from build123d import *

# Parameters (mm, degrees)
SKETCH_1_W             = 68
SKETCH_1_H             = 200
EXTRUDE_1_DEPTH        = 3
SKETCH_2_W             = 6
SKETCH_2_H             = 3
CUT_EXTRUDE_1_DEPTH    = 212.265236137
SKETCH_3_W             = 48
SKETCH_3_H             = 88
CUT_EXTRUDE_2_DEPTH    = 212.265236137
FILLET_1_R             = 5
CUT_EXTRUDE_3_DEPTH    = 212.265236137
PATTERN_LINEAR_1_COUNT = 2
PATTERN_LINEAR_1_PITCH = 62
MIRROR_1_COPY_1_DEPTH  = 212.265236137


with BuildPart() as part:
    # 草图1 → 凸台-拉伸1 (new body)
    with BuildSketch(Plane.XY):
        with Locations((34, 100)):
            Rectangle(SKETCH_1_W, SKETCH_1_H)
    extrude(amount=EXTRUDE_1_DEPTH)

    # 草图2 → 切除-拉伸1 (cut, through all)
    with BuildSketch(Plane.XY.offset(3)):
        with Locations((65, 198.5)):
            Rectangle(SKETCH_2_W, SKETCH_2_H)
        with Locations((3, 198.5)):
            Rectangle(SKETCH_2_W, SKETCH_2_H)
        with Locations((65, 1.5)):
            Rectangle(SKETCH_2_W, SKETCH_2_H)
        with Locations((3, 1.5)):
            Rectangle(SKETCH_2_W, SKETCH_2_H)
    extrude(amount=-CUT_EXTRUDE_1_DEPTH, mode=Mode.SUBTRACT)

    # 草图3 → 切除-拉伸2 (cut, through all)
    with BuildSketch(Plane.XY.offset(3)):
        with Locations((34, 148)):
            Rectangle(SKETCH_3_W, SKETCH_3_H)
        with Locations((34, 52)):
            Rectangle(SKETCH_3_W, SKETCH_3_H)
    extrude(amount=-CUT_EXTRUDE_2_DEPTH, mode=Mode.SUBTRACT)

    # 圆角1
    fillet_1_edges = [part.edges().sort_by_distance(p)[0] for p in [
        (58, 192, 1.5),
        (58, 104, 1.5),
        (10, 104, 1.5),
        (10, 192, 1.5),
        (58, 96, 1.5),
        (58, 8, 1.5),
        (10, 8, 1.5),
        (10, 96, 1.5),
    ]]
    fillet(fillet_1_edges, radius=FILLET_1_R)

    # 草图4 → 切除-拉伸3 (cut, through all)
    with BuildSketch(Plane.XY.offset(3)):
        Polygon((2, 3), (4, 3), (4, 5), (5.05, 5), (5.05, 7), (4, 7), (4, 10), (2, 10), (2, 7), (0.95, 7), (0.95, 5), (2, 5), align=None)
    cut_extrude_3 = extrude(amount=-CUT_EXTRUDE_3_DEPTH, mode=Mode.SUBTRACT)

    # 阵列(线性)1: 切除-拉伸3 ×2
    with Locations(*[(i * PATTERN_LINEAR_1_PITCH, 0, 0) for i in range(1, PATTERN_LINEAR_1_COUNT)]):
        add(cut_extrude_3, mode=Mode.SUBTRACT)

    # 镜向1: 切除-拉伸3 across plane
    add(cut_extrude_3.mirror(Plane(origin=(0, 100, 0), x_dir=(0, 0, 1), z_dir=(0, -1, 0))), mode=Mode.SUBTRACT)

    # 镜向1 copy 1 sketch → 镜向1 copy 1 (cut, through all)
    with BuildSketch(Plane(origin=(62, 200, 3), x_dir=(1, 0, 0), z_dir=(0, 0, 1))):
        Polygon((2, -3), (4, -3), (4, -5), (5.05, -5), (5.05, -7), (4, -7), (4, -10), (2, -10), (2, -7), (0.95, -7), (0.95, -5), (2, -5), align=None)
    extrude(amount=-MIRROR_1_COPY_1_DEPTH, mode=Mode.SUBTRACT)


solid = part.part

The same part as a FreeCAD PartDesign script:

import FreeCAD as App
import Part
import Sketcher

V = App.Vector


def edges_at(feature, points):
    """Names of the edges that pass closest to the given points."""
    edges = feature.Shape.Edges
    near = lambda p: min(range(len(edges)), key=lambda i: edges[i].distToShape(Part.Vertex(*p))[0])
    return sorted({f"Edge{near(p) + 1}" for p in points})

doc = App.newDocument("Part")
body = doc.addObject("PartDesign::Body", "Body")

# Sketch on XY plane
sketch1 = body.newObject("Sketcher::SketchObject", "Sketch")
sketch1.AttachmentSupport = (doc.getObject("XY_Plane"), [""])
sketch1.MapMode = "FlatFace"
sketch1.addGeometry([
    Part.LineSegment(V(0, 200, 0), V(0, 0, 0)),
    Part.LineSegment(V(0, 0, 0), V(68, 0, 0)),
    Part.LineSegment(V(68, 0, 0), V(68, 200, 0)),
    Part.LineSegment(V(68, 200, 0), V(0, 200, 0)),
], False)
sketch1.addConstraint([
    Sketcher.Constraint("Coincident", 0, 2, 1, 1),
    Sketcher.Constraint("Coincident", 1, 2, 2, 1),
    Sketcher.Constraint("Coincident", 2, 2, 3, 1),
    Sketcher.Constraint("Coincident", 3, 2, 0, 1),
    Sketcher.Constraint("Vertical", 0),
    Sketcher.Constraint("Horizontal", 1),
    Sketcher.Constraint("Vertical", 2),
    Sketcher.Constraint("Horizontal", 3),
    Sketcher.Constraint("Coincident", 0, 2, -1, 1),
    Sketcher.Constraint("DistanceX", 1, 1, 1, 2, 68.0),
    Sketcher.Constraint("DistanceY", 0, 2, 0, 1, 200.0),
])
pad1 = body.newObject("PartDesign::Pad", "Pad")
pad1.Profile = sketch1
pad1.Length = 3

# Sketch on XY plane
sketch2 = body.newObject("Sketcher::SketchObject", "Sketch001")
sketch2.AttachmentSupport = (doc.getObject("XY_Plane"), [""])
sketch2.MapMode = "FlatFace"
sketch2.AttachmentOffset = App.Placement(V(0, 0, 3), App.Rotation())
sketch2.addGeometry([
    Part.LineSegment(V(62, 200, 0), V(62, 197, 0)),  # 0
    Part.LineSegment(V(62, 197, 0), V(68, 197, 0)),  # 1
    Part.LineSegment(V(68, 197, 0), V(68, 200, 0)),  # 2
    Part.LineSegment(V(68, 200, 0), V(62, 200, 0)),  # 3
    Part.LineSegment(V(0, 200, 0), V(0, 197, 0)),  # 4
    Part.LineSegment(V(0, 197, 0), V(6, 197, 0)),  # 5
    Part.LineSegment(V(6, 197, 0), V(6, 200, 0)),  # 6
    Part.LineSegment(V(6, 200, 0), V(0, 200, 0)),  # 7
    Part.LineSegment(V(62, 3, 0), V(62, 0, 0)),  # 8
    Part.LineSegment(V(62, 0, 0), V(68, 0, 0)),  # 9
    Part.LineSegment(V(68, 0, 0), V(68, 3, 0)),  # 10
    Part.LineSegment(V(68, 3, 0), V(62, 3, 0)),  # 11
    Part.LineSegment(V(0, 3, 0), V(0, 0, 0)),  # 12
    Part.LineSegment(V(0, 0, 0), V(6, 0, 0)),  # 13
    Part.LineSegment(V(6, 0, 0), V(6, 3, 0)),  # 14
    Part.LineSegment(V(6, 3, 0), V(0, 3, 0)),  # 15
], False)
sketch2.addConstraint([
    Sketcher.Constraint("Coincident", 0, 2, 1, 1),
    Sketcher.Constraint("Coincident", 1, 2, 2, 1),
    Sketcher.Constraint("Coincident", 2, 2, 3, 1),
    Sketcher.Constraint("Coincident", 3, 2, 0, 1),
    Sketcher.Constraint("Coincident", 4, 2, 5, 1),
    Sketcher.Constraint("Coincident", 5, 2, 6, 1),
    Sketcher.Constraint("Coincident", 6, 2, 7, 1),
    Sketcher.Constraint("Coincident", 7, 2, 4, 1),
    Sketcher.Constraint("Coincident", 8, 2, 9, 1),
    Sketcher.Constraint("Coincident", 9, 2, 10, 1),
    Sketcher.Constraint("Coincident", 10, 2, 11, 1),
    Sketcher.Constraint("Coincident", 11, 2, 8, 1),
    Sketcher.Constraint("Coincident", 12, 2, 13, 1),
    Sketcher.Constraint("Coincident", 13, 2, 14, 1),
    Sketcher.Constraint("Coincident", 14, 2, 15, 1),
    Sketcher.Constraint("Coincident", 15, 2, 12, 1),
    Sketcher.Constraint("Vertical", 0),
    Sketcher.Constraint("Horizontal", 1),
    Sketcher.Constraint("Vertical", 2),
    Sketcher.Constraint("Horizontal", 3),
    Sketcher.Constraint("Vertical", 4),
    Sketcher.Constraint("Horizontal", 5),
    Sketcher.Constraint("Vertical", 6),
    Sketcher.Constraint("Horizontal", 7),
    Sketcher.Constraint("Vertical", 8),
    Sketcher.Constraint("Horizontal", 9),
    Sketcher.Constraint("Vertical", 10),
    Sketcher.Constraint("Horizontal", 11),
    Sketcher.Constraint("Vertical", 12),
    Sketcher.Constraint("Horizontal", 13),
    Sketcher.Constraint("Vertical", 14),
    Sketcher.Constraint("Horizontal", 15),
    Sketcher.Constraint("Coincident", 12, 2, -1, 1),
    Sketcher.Constraint("PointOnObject", 4, 2, -2),
    Sketcher.Constraint("PointOnObject", 8, 2, -1),
    Sketcher.Constraint("Horizontal", 1, 2, 4, 2),
    Sketcher.Constraint("Horizontal", 3, 2, 6, 2),
    Sketcher.Constraint("Horizontal", 11, 2, 14, 2),
    Sketcher.Constraint("Vertical", 3, 2, 8, 2),
    Sketcher.Constraint("Vertical", 2, 2, 9, 2),
    Sketcher.Constraint("Vertical", 6, 2, 13, 2),
    Sketcher.Constraint("Equal", 3, 5),
    Sketcher.Constraint("Equal", 6, 8),
    Sketcher.Constraint("DistanceX", 1, 1, 1, 2, 6.0),
    Sketcher.Constraint("DistanceY", 0, 2, 0, 1, 3.0),
    Sketcher.Constraint("DistanceX", -1, 1, 0, 2, 62.0),
    Sketcher.Constraint("DistanceY", -1, 1, 0, 2, 197.0),
])
pocket1 = body.newObject("PartDesign::Pocket", "Pocket")
pocket1.Profile = sketch2
pocket1.Type = "ThroughAll"

# Sketch on XY plane
sketch3 = body.newObject("Sketcher::SketchObject", "Sketch002")
sketch3.AttachmentSupport = (doc.getObject("XY_Plane"), [""])
sketch3.MapMode = "FlatFace"
sketch3.AttachmentOffset = App.Placement(V(0, 0, 3), App.Rotation())
sketch3.addGeometry([
    Part.LineSegment(V(10, 192, 0), V(10, 104, 0)),  # 0
    Part.LineSegment(V(10, 104, 0), V(58, 104, 0)),  # 1
    Part.LineSegment(V(58, 104, 0), V(58, 192, 0)),  # 2
    Part.LineSegment(V(58, 192, 0), V(10, 192, 0)),  # 3
    Part.LineSegment(V(10, 96, 0), V(10, 8, 0)),  # 4
    Part.LineSegment(V(10, 8, 0), V(58, 8, 0)),  # 5
    Part.LineSegment(V(58, 8, 0), V(58, 96, 0)),  # 6
    Part.LineSegment(V(58, 96, 0), V(10, 96, 0)),  # 7
], False)
sketch3.addConstraint([
    Sketcher.Constraint("Coincident", 0, 2, 1, 1),
    Sketcher.Constraint("Coincident", 1, 2, 2, 1),
    Sketcher.Constraint("Coincident", 2, 2, 3, 1),
    Sketcher.Constraint("Coincident", 3, 2, 0, 1),
    Sketcher.Constraint("Coincident", 4, 2, 5, 1),
    Sketcher.Constraint("Coincident", 5, 2, 6, 1),
    Sketcher.Constraint("Coincident", 6, 2, 7, 1),
    Sketcher.Constraint("Coincident", 7, 2, 4, 1),
    Sketcher.Constraint("Vertical", 0),
    Sketcher.Constraint("Horizontal", 1),
    Sketcher.Constraint("Vertical", 2),
    Sketcher.Constraint("Horizontal", 3),
    Sketcher.Constraint("Vertical", 4),
    Sketcher.Constraint("Horizontal", 5),
    Sketcher.Constraint("Vertical", 6),
    Sketcher.Constraint("Horizontal", 7),
    Sketcher.Constraint("Vertical", 3, 2, 4, 2),
    Sketcher.Constraint("Vertical", 2, 2, 5, 2),
    Sketcher.Constraint("Equal", 2, 4),
    Sketcher.Constraint("DistanceX", 1, 1, 1, 2, 48.0),
    Sketcher.Constraint("DistanceY", 0, 2, 0, 1, 88.0),
    Sketcher.Constraint("DistanceX", -1, 1, 0, 2, 10.0),
    Sketcher.Constraint("DistanceY", -1, 1, 0, 2, 104.0),
    Sketcher.Constraint("DistanceY", -1, 1, 4, 2, 8.0),
])
pocket2 = body.newObject("PartDesign::Pocket", "Pocket001")
pocket2.Profile = sketch3
pocket2.Type = "ThroughAll"
doc.recompute()

fillet = body.newObject("PartDesign::Fillet", "Fillet")
fillet.Base = (pocket2, edges_at(pocket2, [
    (58, 192, 1.5),
    (58, 104, 1.5),
    (10, 104, 1.5),
    (10, 192, 1.5),
    (58, 96, 1.5),
    (58, 8, 1.5),
    (10, 8, 1.5),
    (10, 96, 1.5),
]))
fillet.Radius = 5

# Sketch on XY plane
sketch4 = body.newObject("Sketcher::SketchObject", "Sketch003")
sketch4.AttachmentSupport = (doc.getObject("XY_Plane"), [""])
sketch4.MapMode = "FlatFace"
sketch4.AttachmentOffset = App.Placement(V(0, 0, 3), App.Rotation())
sketch4.addGeometry([
    Part.LineSegment(V(2, 3, 0), V(4, 3, 0)),  # 0
    Part.LineSegment(V(4, 3, 0), V(4, 5, 0)),  # 1
    Part.LineSegment(V(4, 5, 0), V(5.05, 5, 0)),  # 2
    Part.LineSegment(V(5.05, 5, 0), V(5.05, 7, 0)),  # 3
    Part.LineSegment(V(5.05, 7, 0), V(4, 7, 0)),  # 4
    Part.LineSegment(V(4, 7, 0), V(4, 10, 0)),  # 5
    Part.LineSegment(V(4, 10, 0), V(2, 10, 0)),  # 6
    Part.LineSegment(V(2, 10, 0), V(2, 7, 0)),  # 7
    Part.LineSegment(V(2, 7, 0), V(0.95, 7, 0)),  # 8
    Part.LineSegment(V(0.95, 7, 0), V(0.95, 5, 0)),  # 9
    Part.LineSegment(V(0.95, 5, 0), V(2, 5, 0)),  # 10
    Part.LineSegment(V(2, 5, 0), V(2, 3, 0)),  # 11
], False)
sketch4.addConstraint([
    Sketcher.Constraint("Coincident", 0, 2, 1, 1),
    Sketcher.Constraint("Coincident", 1, 2, 2, 1),
    Sketcher.Constraint("Coincident", 2, 2, 3, 1),
    Sketcher.Constraint("Coincident", 3, 2, 4, 1),
    Sketcher.Constraint("Coincident", 4, 2, 5, 1),
    Sketcher.Constraint("Coincident", 5, 2, 6, 1),
    Sketcher.Constraint("Coincident", 6, 2, 7, 1),
    Sketcher.Constraint("Coincident", 7, 2, 8, 1),
    Sketcher.Constraint("Coincident", 8, 2, 9, 1),
    Sketcher.Constraint("Coincident", 9, 2, 10, 1),
    Sketcher.Constraint("Coincident", 10, 2, 11, 1),
    Sketcher.Constraint("Coincident", 11, 2, 0, 1),
    Sketcher.Constraint("Horizontal", 0),
    Sketcher.Constraint("Vertical", 1),
    Sketcher.Constraint("Horizontal", 2),
    Sketcher.Constraint("Vertical", 3),
    Sketcher.Constraint("Horizontal", 4),
    Sketcher.Constraint("Vertical", 5),
    Sketcher.Constraint("Horizontal", 6),
    Sketcher.Constraint("Vertical", 7),
    Sketcher.Constraint("Horizontal", 8),
    Sketcher.Constraint("Vertical", 9),
    Sketcher.Constraint("Horizontal", 10),
    Sketcher.Constraint("Vertical", 11),
    Sketcher.Constraint("Horizontal", 4, 2, 7, 2),
    Sketcher.Constraint("Horizontal", 2, 2, 9, 2),
    Sketcher.Constraint("Vertical", 1, 2, 4, 2),
    Sketcher.Constraint("Vertical", 7, 2, 10, 2),
    Sketcher.Constraint("Equal", 4, 8),
    Sketcher.Constraint("Equal", 6, 1),
    Sketcher.Constraint("Equal", 1, 3),
    Sketcher.Constraint("DistanceX", 0, 1, 0, 2, 2.0),
    Sketcher.Constraint("DistanceY", 5, 1, 5, 2, 3.0),
    Sketcher.Constraint("DistanceX", -1, 1, 0, 2, 4.0),
    Sketcher.Constraint("DistanceY", -1, 1, 0, 2, 3.0),
    Sketcher.Constraint("DistanceX", 2, 1, 2, 2, 1.05),
])
pocket3 = body.newObject("PartDesign::Pocket", "Pocket002")
pocket3.Profile = sketch4
pocket3.Type = "ThroughAll"
doc.recompute()

linearpattern = body.newObject("PartDesign::LinearPattern", "LinearPattern")
linearpattern.Originals = [pocket3]
linearpattern.Direction = (doc.getObject("X_Axis"), [""])
linearpattern.Mode = "offset"
linearpattern.Offset = 62
linearpattern.Occurrences = 2
body.Tip = linearpattern
doc.recompute()

datumplane = body.newObject("PartDesign::Plane", "DatumPlane")
datumplane.AttachmentSupport = (doc.getObject("XZ_Plane"), [""])
datumplane.MapMode = "FlatFace"
datumplane.AttachmentOffset = App.Placement(V(0, 0, -100), App.Rotation())
mirrored = body.newObject("PartDesign::Mirrored", "Mirrored")
mirrored.Originals = [pocket3]
mirrored.MirrorPlane = (datumplane, [""])
body.Tip = mirrored

# Sketch on XY plane
sketch5 = body.newObject("Sketcher::SketchObject", "Sketch004")
sketch5.AttachmentSupport = (doc.getObject("XY_Plane"), [""])
sketch5.MapMode = "FlatFace"
sketch5.AttachmentOffset = App.Placement(V(0, 0, 3), App.Rotation())
sketch5.addGeometry([
    Part.LineSegment(V(66, 197, 0), V(64, 197, 0)),  # 0
    Part.LineSegment(V(64, 197, 0), V(64, 195, 0)),  # 1
    Part.LineSegment(V(64, 195, 0), V(62.95, 195, 0)),  # 2
    Part.LineSegment(V(62.95, 195, 0), V(62.95, 193, 0)),  # 3
    Part.LineSegment(V(62.95, 193, 0), V(64, 193, 0)),  # 4
    Part.LineSegment(V(64, 193, 0), V(64, 190, 0)),  # 5
    Part.LineSegment(V(64, 190, 0), V(66, 190, 0)),  # 6
    Part.LineSegment(V(66, 190, 0), V(66, 193, 0)),  # 7
    Part.LineSegment(V(66, 193, 0), V(67.05, 193, 0)),  # 8
    Part.LineSegment(V(67.05, 193, 0), V(67.05, 195, 0)),  # 9
    Part.LineSegment(V(67.05, 195, 0), V(66, 195, 0)),  # 10
    Part.LineSegment(V(66, 195, 0), V(66, 197, 0)),  # 11
], False)
sketch5.addConstraint([
    Sketcher.Constraint("Coincident", 0, 2, 1, 1),
    Sketcher.Constraint("Coincident", 1, 2, 2, 1),
    Sketcher.Constraint("Coincident", 2, 2, 3, 1),
    Sketcher.Constraint("Coincident", 3, 2, 4, 1),
    Sketcher.Constraint("Coincident", 4, 2, 5, 1),
    Sketcher.Constraint("Coincident", 5, 2, 6, 1),
    Sketcher.Constraint("Coincident", 6, 2, 7, 1),
    Sketcher.Constraint("Coincident", 7, 2, 8, 1),
    Sketcher.Constraint("Coincident", 8, 2, 9, 1),
    Sketcher.Constraint("Coincident", 9, 2, 10, 1),
    Sketcher.Constraint("Coincident", 10, 2, 11, 1),
    Sketcher.Constraint("Coincident", 11, 2, 0, 1),
    Sketcher.Constraint("Horizontal", 0),
    Sketcher.Constraint("Vertical", 1),
    Sketcher.Constraint("Horizontal", 2),
    Sketcher.Constraint("Vertical", 3),
    Sketcher.Constraint("Horizontal", 4),
    Sketcher.Constraint("Vertical", 5),
    Sketcher.Constraint("Horizontal", 6),
    Sketcher.Constraint("Vertical", 7),
    Sketcher.Constraint("Horizontal", 8),
    Sketcher.Constraint("Vertical", 9),
    Sketcher.Constraint("Horizontal", 10),
    Sketcher.Constraint("Vertical", 11),
    Sketcher.Constraint("Horizontal", 4, 2, 7, 2),
    Sketcher.Constraint("Horizontal", 2, 2, 9, 2),
    Sketcher.Constraint("Vertical", 1, 2, 4, 2),
    Sketcher.Constraint("Vertical", 7, 2, 10, 2),
    Sketcher.Constraint("Equal", 4, 8),
    Sketcher.Constraint("Equal", 6, 1),
    Sketcher.Constraint("Equal", 1, 3),
    Sketcher.Constraint("DistanceX", 0, 2, 0, 1, 2.0),
    Sketcher.Constraint("DistanceY", 5, 2, 5, 1, 3.0),
    Sketcher.Constraint("DistanceX", -1, 1, 0, 2, 64.0),
    Sketcher.Constraint("DistanceY", -1, 1, 0, 2, 197.0),
    Sketcher.Constraint("DistanceX", 2, 2, 2, 1, 1.05),
])
pocket4 = body.newObject("PartDesign::Pocket", "Pocket003")
pocket4.Profile = sketch5
pocket4.Type = "ThroughAll"

doc.recompute()
